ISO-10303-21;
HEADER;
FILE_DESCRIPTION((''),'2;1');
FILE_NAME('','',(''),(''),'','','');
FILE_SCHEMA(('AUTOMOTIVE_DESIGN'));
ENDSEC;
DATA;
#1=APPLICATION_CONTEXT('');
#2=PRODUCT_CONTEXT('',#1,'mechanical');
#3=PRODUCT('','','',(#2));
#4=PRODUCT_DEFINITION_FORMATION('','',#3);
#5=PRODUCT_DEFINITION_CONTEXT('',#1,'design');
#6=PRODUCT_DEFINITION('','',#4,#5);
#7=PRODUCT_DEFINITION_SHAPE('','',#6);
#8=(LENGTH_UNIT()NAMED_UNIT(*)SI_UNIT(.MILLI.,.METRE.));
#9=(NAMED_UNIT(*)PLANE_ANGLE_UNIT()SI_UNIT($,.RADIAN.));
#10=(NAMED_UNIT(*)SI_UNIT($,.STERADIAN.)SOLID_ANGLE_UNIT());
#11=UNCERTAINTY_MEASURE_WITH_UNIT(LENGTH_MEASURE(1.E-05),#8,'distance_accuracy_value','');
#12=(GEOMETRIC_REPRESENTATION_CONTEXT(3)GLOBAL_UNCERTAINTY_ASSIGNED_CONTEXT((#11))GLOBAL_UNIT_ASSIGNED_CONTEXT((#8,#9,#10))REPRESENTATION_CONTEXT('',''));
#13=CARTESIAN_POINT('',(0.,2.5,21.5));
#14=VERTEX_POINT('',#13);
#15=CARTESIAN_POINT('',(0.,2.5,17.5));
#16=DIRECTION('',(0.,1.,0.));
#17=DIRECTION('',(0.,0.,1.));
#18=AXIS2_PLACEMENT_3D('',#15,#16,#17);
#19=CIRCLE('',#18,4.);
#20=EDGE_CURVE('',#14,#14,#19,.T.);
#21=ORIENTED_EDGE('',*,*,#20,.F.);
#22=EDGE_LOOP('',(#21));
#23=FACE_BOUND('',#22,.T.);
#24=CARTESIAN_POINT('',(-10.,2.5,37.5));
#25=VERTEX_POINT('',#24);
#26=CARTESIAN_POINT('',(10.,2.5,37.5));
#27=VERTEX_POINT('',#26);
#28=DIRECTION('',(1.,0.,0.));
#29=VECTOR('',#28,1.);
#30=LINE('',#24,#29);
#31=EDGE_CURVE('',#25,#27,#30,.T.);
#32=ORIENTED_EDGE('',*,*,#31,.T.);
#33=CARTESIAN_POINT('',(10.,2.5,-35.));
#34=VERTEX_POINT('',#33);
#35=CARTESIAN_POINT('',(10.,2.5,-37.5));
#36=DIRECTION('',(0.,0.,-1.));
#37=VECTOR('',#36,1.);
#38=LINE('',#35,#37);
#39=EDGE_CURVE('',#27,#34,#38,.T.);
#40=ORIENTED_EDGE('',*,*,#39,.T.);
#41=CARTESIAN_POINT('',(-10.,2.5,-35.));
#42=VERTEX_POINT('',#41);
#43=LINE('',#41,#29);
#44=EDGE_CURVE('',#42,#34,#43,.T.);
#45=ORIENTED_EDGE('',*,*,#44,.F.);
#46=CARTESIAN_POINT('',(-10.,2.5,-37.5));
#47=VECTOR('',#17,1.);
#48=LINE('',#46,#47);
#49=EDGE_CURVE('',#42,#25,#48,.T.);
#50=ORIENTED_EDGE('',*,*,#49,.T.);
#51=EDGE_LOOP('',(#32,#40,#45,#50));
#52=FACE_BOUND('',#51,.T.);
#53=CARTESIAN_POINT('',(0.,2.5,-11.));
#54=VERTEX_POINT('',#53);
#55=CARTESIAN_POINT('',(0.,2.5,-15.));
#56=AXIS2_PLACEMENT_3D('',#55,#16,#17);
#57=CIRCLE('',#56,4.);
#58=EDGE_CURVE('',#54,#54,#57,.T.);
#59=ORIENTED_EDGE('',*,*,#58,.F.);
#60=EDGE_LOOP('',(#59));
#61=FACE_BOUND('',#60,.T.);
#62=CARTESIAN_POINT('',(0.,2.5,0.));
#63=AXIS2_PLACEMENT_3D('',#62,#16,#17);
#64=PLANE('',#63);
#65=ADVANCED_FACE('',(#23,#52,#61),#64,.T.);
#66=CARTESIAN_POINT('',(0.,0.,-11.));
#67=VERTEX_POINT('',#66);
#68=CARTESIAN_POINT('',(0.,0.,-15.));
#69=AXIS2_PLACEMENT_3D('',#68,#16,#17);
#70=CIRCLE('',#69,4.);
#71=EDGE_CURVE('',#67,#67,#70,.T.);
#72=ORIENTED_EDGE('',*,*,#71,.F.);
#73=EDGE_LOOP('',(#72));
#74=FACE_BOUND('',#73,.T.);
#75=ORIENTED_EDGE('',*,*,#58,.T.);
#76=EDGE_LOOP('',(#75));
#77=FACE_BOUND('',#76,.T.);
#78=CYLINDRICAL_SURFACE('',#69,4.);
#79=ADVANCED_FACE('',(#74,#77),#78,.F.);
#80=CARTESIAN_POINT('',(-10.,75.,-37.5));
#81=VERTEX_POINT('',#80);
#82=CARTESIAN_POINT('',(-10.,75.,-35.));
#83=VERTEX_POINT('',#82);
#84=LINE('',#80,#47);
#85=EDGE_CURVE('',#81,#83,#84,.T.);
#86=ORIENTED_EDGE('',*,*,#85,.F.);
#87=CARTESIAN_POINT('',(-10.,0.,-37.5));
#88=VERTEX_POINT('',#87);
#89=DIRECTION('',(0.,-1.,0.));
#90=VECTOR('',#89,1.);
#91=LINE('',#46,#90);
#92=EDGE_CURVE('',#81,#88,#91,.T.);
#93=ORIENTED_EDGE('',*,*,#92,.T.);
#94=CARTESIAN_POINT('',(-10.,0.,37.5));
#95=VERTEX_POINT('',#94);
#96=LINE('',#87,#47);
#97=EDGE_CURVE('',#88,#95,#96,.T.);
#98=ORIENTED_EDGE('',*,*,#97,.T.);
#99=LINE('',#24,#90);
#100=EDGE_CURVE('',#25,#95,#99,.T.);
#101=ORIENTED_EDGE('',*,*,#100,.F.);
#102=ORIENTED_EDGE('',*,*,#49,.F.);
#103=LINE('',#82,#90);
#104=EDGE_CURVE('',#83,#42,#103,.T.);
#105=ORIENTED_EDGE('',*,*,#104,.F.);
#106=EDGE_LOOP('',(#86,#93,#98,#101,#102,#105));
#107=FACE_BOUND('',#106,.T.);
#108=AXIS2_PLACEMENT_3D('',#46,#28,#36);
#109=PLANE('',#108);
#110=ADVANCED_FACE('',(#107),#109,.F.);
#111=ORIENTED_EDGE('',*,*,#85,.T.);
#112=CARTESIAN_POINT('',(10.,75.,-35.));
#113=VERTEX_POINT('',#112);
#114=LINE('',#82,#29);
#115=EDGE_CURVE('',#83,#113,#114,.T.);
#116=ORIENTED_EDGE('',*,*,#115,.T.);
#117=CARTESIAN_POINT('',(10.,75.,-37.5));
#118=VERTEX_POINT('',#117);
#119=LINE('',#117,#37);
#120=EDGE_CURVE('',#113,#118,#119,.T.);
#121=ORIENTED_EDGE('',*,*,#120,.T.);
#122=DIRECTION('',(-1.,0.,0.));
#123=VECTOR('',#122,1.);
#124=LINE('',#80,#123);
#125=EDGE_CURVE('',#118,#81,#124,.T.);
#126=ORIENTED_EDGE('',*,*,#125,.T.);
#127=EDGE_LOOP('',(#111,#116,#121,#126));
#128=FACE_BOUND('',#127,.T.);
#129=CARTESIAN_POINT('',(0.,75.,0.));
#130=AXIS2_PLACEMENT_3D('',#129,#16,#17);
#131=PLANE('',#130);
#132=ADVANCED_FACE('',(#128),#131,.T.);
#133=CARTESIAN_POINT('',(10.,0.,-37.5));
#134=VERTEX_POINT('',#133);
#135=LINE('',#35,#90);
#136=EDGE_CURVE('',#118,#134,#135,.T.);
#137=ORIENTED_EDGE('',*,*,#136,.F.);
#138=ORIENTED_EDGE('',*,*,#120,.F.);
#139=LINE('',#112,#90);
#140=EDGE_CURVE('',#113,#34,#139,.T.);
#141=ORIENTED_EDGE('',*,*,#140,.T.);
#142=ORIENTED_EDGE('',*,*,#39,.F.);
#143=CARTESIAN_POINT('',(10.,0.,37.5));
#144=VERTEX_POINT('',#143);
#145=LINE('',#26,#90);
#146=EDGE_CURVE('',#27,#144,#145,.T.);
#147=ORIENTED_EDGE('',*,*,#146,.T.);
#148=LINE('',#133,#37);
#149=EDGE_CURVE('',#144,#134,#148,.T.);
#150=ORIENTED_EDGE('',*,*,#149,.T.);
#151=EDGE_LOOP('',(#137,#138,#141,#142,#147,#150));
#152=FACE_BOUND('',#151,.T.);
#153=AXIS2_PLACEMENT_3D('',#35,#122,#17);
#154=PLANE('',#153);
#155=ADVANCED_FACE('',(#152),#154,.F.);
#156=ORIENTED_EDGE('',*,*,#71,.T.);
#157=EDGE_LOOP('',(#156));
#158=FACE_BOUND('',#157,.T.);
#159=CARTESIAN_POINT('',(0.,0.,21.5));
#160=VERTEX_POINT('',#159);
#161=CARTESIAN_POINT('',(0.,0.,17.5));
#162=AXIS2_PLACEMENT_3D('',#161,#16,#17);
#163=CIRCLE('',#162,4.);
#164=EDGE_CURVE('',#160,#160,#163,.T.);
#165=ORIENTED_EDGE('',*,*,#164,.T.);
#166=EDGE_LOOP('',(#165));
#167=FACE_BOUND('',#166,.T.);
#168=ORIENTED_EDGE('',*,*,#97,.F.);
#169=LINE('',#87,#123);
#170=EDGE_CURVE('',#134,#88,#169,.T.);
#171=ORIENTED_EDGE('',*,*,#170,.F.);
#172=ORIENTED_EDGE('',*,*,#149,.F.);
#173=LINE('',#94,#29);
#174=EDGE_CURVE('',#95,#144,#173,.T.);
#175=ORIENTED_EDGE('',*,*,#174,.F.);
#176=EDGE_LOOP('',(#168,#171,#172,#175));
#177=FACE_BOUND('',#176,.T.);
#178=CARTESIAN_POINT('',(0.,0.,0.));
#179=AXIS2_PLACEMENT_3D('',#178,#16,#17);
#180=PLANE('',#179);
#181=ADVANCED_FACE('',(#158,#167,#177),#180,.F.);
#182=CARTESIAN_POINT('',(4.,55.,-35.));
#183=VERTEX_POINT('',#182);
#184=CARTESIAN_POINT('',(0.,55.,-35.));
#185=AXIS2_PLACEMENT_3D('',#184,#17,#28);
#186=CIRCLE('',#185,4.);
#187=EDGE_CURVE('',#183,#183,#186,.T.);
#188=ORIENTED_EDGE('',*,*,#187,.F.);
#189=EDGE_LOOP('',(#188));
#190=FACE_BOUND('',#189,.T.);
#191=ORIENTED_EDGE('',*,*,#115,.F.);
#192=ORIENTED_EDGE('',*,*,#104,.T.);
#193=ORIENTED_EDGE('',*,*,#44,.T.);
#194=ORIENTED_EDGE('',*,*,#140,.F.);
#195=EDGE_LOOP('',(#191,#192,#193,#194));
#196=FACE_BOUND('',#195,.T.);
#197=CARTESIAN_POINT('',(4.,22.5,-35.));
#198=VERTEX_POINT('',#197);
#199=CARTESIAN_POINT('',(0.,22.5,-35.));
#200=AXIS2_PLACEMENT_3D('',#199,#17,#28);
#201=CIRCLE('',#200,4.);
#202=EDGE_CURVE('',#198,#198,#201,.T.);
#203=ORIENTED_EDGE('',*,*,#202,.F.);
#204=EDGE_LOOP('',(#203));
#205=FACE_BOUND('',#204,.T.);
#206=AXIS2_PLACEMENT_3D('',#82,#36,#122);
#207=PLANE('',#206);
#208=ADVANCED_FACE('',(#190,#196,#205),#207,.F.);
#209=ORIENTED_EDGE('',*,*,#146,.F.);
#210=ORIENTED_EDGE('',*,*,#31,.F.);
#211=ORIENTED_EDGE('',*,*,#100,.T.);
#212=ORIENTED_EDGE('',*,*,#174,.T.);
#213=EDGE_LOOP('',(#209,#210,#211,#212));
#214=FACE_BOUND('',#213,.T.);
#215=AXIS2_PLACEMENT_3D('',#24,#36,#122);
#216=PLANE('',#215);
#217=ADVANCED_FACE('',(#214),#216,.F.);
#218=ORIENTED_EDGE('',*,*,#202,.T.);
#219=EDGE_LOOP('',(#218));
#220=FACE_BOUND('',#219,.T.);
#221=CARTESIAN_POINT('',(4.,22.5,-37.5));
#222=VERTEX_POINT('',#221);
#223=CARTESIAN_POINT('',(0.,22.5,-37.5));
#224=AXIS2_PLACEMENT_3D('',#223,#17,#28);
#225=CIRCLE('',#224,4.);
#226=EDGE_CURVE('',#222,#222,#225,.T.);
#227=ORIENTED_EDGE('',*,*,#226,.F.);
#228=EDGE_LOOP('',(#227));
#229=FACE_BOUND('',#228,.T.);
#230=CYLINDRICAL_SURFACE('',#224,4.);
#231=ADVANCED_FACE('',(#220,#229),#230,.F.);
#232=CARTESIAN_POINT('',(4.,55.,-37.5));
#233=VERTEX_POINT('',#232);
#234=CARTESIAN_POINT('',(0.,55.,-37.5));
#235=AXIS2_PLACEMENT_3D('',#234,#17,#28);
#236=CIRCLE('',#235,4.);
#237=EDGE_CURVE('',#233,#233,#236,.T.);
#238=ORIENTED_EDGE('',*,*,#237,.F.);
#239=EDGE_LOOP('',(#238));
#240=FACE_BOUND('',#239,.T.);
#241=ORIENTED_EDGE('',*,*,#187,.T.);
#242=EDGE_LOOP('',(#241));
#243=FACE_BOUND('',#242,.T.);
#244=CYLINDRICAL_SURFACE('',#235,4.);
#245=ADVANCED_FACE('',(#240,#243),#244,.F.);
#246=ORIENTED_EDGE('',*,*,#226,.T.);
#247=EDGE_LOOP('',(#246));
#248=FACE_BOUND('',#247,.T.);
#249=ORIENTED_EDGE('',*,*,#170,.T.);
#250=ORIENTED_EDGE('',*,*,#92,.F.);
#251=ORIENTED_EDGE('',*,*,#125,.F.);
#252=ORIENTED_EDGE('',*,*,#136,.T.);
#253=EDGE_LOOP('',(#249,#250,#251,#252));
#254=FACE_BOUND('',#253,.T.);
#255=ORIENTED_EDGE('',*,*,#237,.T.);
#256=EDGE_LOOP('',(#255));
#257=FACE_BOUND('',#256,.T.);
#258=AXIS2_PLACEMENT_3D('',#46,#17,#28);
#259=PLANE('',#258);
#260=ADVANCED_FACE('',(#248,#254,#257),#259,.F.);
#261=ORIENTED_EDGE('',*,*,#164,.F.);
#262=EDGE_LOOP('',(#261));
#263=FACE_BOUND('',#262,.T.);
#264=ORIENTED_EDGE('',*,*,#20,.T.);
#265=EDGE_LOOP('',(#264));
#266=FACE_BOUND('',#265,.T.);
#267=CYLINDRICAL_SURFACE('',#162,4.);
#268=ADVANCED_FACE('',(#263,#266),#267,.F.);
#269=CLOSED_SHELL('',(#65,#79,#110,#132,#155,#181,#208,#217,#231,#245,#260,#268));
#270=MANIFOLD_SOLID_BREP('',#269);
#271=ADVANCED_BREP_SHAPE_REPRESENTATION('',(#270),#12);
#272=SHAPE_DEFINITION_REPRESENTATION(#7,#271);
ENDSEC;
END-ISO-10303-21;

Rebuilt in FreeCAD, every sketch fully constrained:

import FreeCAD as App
import Part
import Sketcher

V = App.Vector
Q = App.Units.Quantity


def add_polygon(sketch, points):
    """Adds a closed chain of lines whose ends are joined by coincident constraints."""
    first, n = sketch.GeometryCount, len(points)
    for a, b in zip(points, points[1:] + points[:1]):
        sketch.addGeometry(Part.LineSegment(App.Vector(*a, 0), App.Vector(*b, 0)), False)
    for i in range(n):
        sketch.addConstraint(Sketcher.Constraint("Coincident", first + i, 2, first + (i + 1) % n, 1))

doc = App.newDocument("Part")
body = doc.addObject("PartDesign::Body", "Body")

# Sketch on XZ plane
sketch1 = doc.addObject("Sketcher::SketchObject", "Sketch")
body.addObject(sketch1)
sketch1.AttachmentSupport = (doc.XZ_Plane, [""])
sketch1.MapMode = "FlatFace"
add_polygon(sketch1, [(-10, -38), (-10, 38), (10, 38), (10, -38)])  # lines 0-3
sketch1.addConstraint([
    Sketcher.Constraint("Vertical", 0),
    Sketcher.Constraint("Horizontal", 1),
    Sketcher.Constraint("Vertical", 2),
    Sketcher.Constraint("Horizontal", 3),
    Sketcher.Constraint("Symmetric", 0, 2, 2, 2, -1, 1),
    Sketcher.Constraint("DistanceX", 1, 1, 1, 2, Q("20 mm")),
    Sketcher.Constraint("DistanceY", 0, 1, 0, 2, Q("75 mm")),
])
pad1 = doc.addObject("PartDesign::Pad", "Pad")
body.addObject(pad1)
pad1.Profile = sketch1
pad1.Length = 2.5
pad1.Reversed = True

# Sketch on XZ plane
sketch2 = doc.addObject("Sketcher::SketchObject", "Sketch001")
body.addObject(sketch2)
sketch2.AttachmentSupport = (doc.XZ_Plane, [""])
sketch2.MapMode = "FlatFace"
sketch2.AttachmentOffset = App.Placement(V(0, 0, -2.5), App.Rotation())
add_polygon(sketch2, [(-10, -37.5), (-10, -35), (10, -35), (10, -37.5)])  # lines 0-3
sketch2.addConstraint([
    Sketcher.Constraint("Vertical", 0),
    Sketcher.Constraint("Horizontal", 1),
    Sketcher.Constraint("Vertical", 2),
    Sketcher.Constraint("Horizontal", 3),
    Sketcher.Constraint("DistanceX", 1, 1, 1, 2, Q("20 mm")),
    Sketcher.Constraint("DistanceY", 0, 1, 0, 2, Q("2.5 mm")),
    Sketcher.Constraint("DistanceX", 0, 2, -1, 1, Q("10 mm")),
    Sketcher.Constraint("DistanceY", 0, 2, -1, 1, Q("35 mm")),
])
pad2 = doc.addObject("PartDesign::Pad", "Pad001")
body.addObject(pad2)
pad2.Profile = sketch2
pad2.Length = 72.5
pad2.Reversed = True

# Sketch on XZ plane
sketch3 = doc.addObject("Sketcher::SketchObject", "Sketch002")
body.addObject(sketch3)
sketch3.AttachmentSupport = (doc.XZ_Plane, [""])
sketch3.MapMode = "FlatFace"
sketch3.AttachmentOffset = App.Placement(V(0, 0, -2.5), App.Rotation())
sketch3.addGeometry([
    Part.Circle(V(0, -15, 0), V(0, 0, 1), 4),
    Part.Circle(V(0, 17.5, 0), V(0, 0, 1), 4),
], False)
sketch3.addConstraint([
    Sketcher.Constraint("Equal", 0, 1),
    Sketcher.Constraint("PointOnObject", 0, 3, -2),
    Sketcher.Constraint("PointOnObject", 1, 3, -2),
    Sketcher.Constraint("Diameter", 0, Q("8 mm")),
    Sketcher.Constraint("DistanceY", 0, 3, -1, 1, Q("15 mm")),
    Sketcher.Constraint("DistanceY", -1, 1, 1, 3, Q("17.5 mm")),
])
pocket1 = doc.addObject("PartDesign::Pocket", "Pocket")
body.addObject(pocket1)
pocket1.Profile = sketch3
pocket1.Length = 2.5
pocket1.Reversed = True

# Sketch on XY plane
sketch4 = doc.addObject("Sketcher::SketchObject", "Sketch003")
body.addObject(sketch4)
sketch4.AttachmentSupport = (doc.XY_Plane, [""])
sketch4.MapMode = "FlatFace"
sketch4.AttachmentOffset = App.Placement(V(0, 0, -35), App.Rotation())
sketch4.addGeometry([
    Part.Circle(V(0, 55, 0), V(0, 0, 1), 4),
    Part.Circle(V(0, 22.5, 0), V(0, 0, 1), 4),
], False)
sketch4.addConstraint([
    Sketcher.Constraint("Equal", 0, 1),
    Sketcher.Constraint("PointOnObject", 0, 3, -2),
    Sketcher.Constraint("PointOnObject", 1, 3, -2),
    Sketcher.Constraint("Diameter", 0, Q("8 mm")),
    Sketcher.Constraint("DistanceY", -1, 1, 0, 3, Q("55 mm")),
    Sketcher.Constraint("DistanceY", -1, 1, 1, 3, Q("22.5 mm")),
])
pocket2 = doc.addObject("PartDesign::Pocket", "Pocket001")
body.addObject(pocket2)
pocket2.Profile = sketch4
pocket2.Length = 2.5

doc.recompute()
